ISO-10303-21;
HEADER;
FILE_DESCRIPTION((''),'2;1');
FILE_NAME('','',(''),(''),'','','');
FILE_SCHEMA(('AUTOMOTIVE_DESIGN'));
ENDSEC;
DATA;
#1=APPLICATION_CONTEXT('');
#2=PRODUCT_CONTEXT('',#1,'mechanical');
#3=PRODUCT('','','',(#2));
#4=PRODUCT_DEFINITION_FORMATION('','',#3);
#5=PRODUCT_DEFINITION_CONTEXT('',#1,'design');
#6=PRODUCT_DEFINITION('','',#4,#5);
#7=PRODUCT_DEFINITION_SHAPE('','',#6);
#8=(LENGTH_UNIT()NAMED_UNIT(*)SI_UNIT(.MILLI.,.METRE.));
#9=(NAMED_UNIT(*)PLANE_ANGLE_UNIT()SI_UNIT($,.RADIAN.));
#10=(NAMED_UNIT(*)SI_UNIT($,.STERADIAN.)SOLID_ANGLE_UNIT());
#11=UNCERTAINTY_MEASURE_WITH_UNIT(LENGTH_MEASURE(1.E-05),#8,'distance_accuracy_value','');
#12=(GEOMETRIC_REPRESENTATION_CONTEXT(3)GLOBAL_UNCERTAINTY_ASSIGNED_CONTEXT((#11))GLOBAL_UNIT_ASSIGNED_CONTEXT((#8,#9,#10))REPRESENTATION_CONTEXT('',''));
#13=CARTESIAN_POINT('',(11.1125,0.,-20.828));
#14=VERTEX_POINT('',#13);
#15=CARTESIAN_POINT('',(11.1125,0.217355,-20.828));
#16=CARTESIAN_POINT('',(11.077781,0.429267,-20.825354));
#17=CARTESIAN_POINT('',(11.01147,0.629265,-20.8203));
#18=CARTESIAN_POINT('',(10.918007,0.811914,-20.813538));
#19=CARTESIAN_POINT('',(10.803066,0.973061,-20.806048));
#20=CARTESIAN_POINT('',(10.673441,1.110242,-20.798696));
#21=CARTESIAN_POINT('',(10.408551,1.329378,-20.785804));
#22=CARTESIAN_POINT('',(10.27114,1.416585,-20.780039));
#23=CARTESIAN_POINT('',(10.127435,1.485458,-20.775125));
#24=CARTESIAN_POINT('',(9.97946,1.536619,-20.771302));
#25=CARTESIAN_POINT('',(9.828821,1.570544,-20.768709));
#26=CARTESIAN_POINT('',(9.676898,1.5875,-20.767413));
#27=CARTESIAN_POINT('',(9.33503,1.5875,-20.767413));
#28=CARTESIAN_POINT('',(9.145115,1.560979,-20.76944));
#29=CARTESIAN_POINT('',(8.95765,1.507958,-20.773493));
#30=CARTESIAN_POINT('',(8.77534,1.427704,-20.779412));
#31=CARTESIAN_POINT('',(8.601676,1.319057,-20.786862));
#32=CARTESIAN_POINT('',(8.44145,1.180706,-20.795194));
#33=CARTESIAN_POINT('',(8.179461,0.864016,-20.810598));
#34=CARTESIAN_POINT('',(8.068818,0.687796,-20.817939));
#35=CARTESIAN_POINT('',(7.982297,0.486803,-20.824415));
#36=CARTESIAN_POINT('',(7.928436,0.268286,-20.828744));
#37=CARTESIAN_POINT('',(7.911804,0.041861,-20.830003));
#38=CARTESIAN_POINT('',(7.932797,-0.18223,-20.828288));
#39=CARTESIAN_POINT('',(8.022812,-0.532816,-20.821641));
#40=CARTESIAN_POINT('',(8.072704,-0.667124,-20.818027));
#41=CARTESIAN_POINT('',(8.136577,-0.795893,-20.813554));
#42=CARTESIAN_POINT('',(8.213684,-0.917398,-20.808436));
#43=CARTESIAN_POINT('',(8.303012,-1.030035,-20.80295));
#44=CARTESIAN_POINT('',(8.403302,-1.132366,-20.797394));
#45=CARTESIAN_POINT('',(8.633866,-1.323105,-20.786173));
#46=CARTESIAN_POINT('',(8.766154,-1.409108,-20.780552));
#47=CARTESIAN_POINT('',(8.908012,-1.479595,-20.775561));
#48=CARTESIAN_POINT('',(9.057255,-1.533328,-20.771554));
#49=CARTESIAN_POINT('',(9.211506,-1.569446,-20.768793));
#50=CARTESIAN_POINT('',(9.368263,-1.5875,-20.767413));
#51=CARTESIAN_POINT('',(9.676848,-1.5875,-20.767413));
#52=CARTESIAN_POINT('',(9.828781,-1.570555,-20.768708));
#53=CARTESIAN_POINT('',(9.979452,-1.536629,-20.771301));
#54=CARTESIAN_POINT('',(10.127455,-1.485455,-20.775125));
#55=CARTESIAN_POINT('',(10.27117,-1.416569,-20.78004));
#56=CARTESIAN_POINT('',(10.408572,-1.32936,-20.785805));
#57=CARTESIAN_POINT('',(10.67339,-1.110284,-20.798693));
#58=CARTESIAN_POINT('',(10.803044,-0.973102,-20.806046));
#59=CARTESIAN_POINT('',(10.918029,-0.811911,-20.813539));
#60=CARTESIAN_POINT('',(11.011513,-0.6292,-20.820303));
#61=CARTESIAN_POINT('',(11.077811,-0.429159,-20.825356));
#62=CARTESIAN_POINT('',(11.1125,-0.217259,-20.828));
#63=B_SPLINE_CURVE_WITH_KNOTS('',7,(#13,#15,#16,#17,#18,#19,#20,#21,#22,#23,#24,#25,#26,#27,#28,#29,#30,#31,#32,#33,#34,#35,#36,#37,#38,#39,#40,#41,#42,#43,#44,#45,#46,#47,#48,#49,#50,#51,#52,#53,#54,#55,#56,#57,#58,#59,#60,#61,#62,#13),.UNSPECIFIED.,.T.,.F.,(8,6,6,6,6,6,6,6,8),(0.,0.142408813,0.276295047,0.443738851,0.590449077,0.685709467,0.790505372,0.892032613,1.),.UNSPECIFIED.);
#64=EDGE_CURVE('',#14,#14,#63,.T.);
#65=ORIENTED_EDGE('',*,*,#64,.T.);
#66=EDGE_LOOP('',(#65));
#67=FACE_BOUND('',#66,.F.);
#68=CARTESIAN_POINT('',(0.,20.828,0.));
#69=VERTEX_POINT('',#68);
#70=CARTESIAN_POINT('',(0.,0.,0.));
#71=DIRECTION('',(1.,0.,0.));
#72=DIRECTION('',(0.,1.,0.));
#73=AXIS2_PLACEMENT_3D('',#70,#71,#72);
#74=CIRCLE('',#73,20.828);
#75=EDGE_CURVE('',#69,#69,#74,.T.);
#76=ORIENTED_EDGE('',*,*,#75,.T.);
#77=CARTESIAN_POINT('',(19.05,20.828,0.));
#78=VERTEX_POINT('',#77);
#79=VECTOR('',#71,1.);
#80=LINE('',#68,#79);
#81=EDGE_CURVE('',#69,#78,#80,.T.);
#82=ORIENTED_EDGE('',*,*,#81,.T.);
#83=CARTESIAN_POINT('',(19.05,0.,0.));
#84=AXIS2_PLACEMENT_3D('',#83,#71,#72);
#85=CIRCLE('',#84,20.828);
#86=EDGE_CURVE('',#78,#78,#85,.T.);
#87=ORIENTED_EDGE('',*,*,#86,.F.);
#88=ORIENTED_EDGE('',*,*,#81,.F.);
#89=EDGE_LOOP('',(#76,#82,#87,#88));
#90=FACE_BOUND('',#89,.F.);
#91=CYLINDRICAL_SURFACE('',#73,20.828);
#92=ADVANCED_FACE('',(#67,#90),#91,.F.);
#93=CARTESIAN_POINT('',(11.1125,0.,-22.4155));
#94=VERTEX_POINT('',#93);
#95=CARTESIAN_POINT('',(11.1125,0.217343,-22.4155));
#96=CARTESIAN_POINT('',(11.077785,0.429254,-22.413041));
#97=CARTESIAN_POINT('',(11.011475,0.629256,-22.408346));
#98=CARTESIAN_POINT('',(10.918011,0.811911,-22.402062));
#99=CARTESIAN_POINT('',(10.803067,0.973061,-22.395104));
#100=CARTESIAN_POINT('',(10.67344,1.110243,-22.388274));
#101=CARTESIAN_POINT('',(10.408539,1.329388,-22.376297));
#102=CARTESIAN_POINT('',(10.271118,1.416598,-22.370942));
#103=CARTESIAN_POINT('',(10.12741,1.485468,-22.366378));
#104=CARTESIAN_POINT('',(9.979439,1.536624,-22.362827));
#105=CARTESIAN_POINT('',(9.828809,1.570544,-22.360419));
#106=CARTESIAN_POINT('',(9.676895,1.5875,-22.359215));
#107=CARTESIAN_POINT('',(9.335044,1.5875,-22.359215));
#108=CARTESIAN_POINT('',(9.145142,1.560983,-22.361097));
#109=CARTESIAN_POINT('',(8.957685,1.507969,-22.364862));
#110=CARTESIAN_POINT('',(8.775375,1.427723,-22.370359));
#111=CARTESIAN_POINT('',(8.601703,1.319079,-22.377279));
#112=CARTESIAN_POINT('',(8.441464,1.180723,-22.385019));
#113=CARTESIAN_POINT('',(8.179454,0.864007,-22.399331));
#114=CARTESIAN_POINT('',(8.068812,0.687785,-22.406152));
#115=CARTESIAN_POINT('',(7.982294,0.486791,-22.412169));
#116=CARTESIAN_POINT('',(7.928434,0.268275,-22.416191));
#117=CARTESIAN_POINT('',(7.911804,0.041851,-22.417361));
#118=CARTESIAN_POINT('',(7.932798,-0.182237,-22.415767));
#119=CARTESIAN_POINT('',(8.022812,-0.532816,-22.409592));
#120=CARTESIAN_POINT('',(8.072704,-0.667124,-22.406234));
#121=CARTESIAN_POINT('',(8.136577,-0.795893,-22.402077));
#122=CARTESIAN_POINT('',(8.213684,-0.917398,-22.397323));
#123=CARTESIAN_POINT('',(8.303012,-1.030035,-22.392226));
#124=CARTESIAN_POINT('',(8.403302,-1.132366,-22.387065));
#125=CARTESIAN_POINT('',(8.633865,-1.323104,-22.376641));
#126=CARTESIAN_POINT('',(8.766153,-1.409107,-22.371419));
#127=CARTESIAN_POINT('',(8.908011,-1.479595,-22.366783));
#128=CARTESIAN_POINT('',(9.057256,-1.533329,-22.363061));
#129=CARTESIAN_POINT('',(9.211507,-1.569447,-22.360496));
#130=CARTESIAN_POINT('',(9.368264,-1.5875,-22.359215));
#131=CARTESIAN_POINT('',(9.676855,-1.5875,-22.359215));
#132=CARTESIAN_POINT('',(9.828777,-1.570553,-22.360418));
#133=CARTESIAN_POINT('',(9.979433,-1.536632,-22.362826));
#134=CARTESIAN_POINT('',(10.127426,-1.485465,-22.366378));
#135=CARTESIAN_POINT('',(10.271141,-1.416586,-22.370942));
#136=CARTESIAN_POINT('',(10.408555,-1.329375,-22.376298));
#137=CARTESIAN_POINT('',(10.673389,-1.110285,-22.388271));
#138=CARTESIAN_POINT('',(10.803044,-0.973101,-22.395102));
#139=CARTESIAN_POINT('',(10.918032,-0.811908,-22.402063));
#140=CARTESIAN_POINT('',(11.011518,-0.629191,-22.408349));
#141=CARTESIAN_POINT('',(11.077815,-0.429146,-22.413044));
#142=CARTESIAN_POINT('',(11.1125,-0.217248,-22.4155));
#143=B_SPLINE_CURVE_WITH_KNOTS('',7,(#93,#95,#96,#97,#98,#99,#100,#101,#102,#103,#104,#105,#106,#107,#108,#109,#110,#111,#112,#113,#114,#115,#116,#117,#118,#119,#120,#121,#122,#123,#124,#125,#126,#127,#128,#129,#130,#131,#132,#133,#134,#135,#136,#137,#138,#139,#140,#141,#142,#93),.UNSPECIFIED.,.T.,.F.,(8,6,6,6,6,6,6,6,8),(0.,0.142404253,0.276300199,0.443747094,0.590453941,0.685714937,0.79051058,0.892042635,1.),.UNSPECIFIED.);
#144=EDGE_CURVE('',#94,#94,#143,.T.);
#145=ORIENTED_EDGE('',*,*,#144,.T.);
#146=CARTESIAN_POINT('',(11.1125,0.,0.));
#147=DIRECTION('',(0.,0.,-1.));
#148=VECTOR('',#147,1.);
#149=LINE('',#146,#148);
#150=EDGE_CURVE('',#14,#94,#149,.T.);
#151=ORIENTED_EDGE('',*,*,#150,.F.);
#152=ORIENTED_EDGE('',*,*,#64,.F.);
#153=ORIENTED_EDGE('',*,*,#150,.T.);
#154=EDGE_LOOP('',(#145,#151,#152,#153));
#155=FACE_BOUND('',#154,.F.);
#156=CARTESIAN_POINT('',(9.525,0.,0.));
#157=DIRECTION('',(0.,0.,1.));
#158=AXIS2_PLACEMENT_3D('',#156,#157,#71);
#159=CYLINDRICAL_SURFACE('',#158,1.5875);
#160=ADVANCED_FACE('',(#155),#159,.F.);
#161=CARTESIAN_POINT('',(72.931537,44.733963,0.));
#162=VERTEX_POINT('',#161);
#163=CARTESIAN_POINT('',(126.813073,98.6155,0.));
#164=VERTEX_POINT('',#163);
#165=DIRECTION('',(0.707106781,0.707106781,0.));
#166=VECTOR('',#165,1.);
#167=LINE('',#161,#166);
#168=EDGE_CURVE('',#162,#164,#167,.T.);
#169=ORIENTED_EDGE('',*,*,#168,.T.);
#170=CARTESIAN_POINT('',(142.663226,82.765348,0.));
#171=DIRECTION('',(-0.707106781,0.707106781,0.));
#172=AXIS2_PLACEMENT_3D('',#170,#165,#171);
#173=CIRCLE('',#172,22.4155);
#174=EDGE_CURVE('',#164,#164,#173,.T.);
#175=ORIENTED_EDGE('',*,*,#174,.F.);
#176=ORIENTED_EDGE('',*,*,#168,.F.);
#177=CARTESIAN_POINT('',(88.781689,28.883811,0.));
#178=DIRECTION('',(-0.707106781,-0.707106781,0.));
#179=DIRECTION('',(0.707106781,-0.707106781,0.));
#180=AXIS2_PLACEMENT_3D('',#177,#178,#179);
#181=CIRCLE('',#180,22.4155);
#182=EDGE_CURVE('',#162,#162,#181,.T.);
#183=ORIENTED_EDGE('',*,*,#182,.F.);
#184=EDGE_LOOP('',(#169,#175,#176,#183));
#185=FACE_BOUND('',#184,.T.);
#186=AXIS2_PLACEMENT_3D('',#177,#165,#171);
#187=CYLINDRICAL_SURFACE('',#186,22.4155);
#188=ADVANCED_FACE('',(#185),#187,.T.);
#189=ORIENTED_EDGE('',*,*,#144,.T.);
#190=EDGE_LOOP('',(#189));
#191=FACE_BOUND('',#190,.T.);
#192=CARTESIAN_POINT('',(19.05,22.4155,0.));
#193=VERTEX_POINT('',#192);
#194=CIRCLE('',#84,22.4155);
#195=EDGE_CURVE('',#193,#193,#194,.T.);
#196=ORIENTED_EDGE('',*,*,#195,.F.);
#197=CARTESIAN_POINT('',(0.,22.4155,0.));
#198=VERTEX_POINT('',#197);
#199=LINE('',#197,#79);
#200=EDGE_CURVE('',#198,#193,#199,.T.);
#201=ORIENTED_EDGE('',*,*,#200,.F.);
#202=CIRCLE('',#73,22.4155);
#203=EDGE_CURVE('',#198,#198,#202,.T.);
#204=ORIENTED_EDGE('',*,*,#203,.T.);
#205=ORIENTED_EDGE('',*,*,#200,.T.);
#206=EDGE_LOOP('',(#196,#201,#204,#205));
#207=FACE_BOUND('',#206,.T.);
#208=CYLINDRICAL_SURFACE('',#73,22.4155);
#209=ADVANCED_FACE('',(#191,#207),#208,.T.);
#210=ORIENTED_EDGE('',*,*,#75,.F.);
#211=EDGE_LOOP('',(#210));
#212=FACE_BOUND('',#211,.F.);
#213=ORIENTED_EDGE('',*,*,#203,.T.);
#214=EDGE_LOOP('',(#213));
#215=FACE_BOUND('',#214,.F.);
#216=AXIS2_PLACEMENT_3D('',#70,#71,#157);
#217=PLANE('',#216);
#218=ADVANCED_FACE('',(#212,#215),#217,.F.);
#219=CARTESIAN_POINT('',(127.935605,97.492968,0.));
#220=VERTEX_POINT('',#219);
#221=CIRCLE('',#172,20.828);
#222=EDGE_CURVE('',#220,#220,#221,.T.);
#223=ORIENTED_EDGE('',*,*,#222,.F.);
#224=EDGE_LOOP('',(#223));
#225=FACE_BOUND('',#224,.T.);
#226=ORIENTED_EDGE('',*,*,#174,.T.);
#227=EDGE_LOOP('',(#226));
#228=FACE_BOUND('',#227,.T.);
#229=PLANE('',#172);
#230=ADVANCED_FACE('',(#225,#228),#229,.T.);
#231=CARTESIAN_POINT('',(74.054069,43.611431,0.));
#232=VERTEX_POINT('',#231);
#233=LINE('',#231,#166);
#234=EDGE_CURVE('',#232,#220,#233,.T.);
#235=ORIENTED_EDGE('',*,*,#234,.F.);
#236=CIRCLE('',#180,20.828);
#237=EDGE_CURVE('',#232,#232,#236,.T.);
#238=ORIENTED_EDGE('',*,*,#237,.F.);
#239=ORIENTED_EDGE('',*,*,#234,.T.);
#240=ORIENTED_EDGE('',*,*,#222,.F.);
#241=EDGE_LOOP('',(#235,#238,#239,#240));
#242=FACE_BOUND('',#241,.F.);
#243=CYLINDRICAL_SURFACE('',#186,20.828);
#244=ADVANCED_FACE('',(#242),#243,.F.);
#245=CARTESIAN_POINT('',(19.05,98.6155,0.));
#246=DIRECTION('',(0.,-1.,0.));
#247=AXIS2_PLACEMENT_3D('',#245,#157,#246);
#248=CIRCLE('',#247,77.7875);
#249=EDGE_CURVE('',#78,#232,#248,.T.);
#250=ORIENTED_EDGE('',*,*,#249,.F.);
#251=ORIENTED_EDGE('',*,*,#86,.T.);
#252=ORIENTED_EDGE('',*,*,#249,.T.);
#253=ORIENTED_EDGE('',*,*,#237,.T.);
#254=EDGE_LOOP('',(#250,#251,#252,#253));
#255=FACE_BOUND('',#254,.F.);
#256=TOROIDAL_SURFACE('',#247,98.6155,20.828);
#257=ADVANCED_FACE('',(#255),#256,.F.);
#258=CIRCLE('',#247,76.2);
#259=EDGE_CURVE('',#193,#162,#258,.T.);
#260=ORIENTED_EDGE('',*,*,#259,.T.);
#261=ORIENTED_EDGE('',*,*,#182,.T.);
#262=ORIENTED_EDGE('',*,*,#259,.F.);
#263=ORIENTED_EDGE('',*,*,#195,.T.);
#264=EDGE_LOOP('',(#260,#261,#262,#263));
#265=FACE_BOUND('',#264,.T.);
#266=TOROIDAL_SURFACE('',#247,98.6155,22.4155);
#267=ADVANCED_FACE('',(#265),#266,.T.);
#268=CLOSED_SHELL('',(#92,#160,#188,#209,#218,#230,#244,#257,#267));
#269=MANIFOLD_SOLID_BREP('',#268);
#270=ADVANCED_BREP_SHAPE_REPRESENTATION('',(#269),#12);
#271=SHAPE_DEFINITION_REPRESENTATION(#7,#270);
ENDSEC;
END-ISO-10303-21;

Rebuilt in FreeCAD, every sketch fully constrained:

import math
import FreeCAD as App
import Part
import Sketcher
from FreeCAD import Vector
Q = App.Units.Quantity

doc = App.newDocument("Part")
params = doc.addObject("Spreadsheet::Sheet", "Params")
for row, (alias, value) in enumerate([
    ("sketch1_diameter", "1.64 in"),
    ("sketch1_diameter2", "1.765 in"),
    ("sketch2_length", "3 in"),
    ("sketch2_width", "0.75 in"),
    ("sketch3_diameter", "0.125 in"),
    ("pocket1_length", "23.4155 mm"),
], start=1):
    params.set(f"A{row}", alias)
    params.set(f"B{row}", "=" + value)
    params.setAlias(f"B{row}", alias)

body = doc.addObject("PartDesign::Body", "Body")

# Sketch on YZ plane
sketch1 = body.newObject("Sketcher::SketchObject", "Sketch")
sketch1.AttachmentSupport = (doc.getObject("YZ_Plane"), [""])
sketch1.MapMode = "FlatFace"
sketch1.addGeometry(Part.Circle(Vector(0, 0, 0), Vector(0, 0, 1), 22), False)
sketch1.addGeometry(Part.Circle(Vector(0, 0, 0), Vector(0, 0, 1), 21), False)
sketch1.addConstraint(Sketcher.Constraint("Coincident", 0, 3, -1, 1))
sketch1.addConstraint(Sketcher.Constraint("Coincident", 1, 3, -1, 1))
sketch1.addConstraint(Sketcher.Constraint("Diameter", 1, Q("1.64 in")))
sketch1.addConstraint(Sketcher.Constraint("Diameter", 0, Q("1.765 in")))
sketch1.setExpression("Constraints[2]", "Params.sketch1_diameter")
sketch1.setExpression("Constraints[3]", "Params.sketch1_diameter2")

# Sketch on XY plane
sketch2 = body.newObject("Sketcher::SketchObject", "Sketch001")
sketch2.AttachmentSupport = (doc.getObject("XY_Plane"), [""])
sketch2.MapMode = "FlatFace"
sketch2.addGeometry(Part.LineSegment(Vector(0, 0, 0), Vector(19, 0, 0)), False)
sketch2.addGeometry(Part.ArcOfCircle(Part.Circle(Vector(19, 99, 0), Vector(0, 0, 1), 99), math.radians(-90), math.radians(-45)), False)
sketch2.addGeometry(Part.LineSegment(Vector(89, 29, 0), Vector(143, 83, 0)), False)
sketch2.addConstraint(Sketcher.Constraint("Tangent", 0, 2, 1, 1))
sketch2.addConstraint(Sketcher.Constraint("Tangent", 1, 2, 2, 1))
sketch2.addConstraint(Sketcher.Constraint("Horizontal", 0))
sketch2.addConstraint(Sketcher.Constraint("Coincident", 0, 1, -1, 1))
sketch2.addConstraint(Sketcher.Constraint("Distance", 2, Q("3 in")))
sketch2.addConstraint(Sketcher.Constraint("Angle", 2, Q("45 deg")))
sketch2.addConstraint(Sketcher.Constraint("DistanceX", 0, 1, 0, 2, Q("0.75 in")))
sketch2.addConstraint(Sketcher.Constraint("Radius", 1, Q("3.8825 in")))
sketch2.setExpression("Constraints[4]", "Params.sketch2_length")
sketch2.setExpression("Constraints[6]", "Params.sketch2_width")
doc.recompute()

additivepipe = body.newObject("PartDesign::AdditivePipe", "AdditivePipe")
additivepipe.Profile = sketch1
additivepipe.Spine = (sketch2, ["Edge1", "Edge2", "Edge3"])

# Sketch on XY plane
sketch3 = body.newObject("Sketcher::SketchObject", "Sketch002")
sketch3.AttachmentSupport = (doc.getObject("XY_Plane"), [""])
sketch3.MapMode = "FlatFace"
sketch3.addGeometry(Part.Circle(Vector(9.5, 0, 0), Vector(0, 0, 1), 1.6), False)
sketch3.addConstraint(Sketcher.Constraint("PointOnObject", 0, 3, -1))
sketch3.addConstraint(Sketcher.Constraint("Diameter", 0, Q("0.125 in")))
sketch3.addConstraint(Sketcher.Constraint("DistanceX", -1, 1, 0, 3, Q("0.375 in")))
sketch3.setExpression("Constraints[1]", "Params.sketch3_diameter")
pocket1 = body.newObject("PartDesign::Pocket", "Pocket")
pocket1.Profile = sketch3
pocket1.setExpression("Length", "Params.pocket1_length")

doc.recompute()
